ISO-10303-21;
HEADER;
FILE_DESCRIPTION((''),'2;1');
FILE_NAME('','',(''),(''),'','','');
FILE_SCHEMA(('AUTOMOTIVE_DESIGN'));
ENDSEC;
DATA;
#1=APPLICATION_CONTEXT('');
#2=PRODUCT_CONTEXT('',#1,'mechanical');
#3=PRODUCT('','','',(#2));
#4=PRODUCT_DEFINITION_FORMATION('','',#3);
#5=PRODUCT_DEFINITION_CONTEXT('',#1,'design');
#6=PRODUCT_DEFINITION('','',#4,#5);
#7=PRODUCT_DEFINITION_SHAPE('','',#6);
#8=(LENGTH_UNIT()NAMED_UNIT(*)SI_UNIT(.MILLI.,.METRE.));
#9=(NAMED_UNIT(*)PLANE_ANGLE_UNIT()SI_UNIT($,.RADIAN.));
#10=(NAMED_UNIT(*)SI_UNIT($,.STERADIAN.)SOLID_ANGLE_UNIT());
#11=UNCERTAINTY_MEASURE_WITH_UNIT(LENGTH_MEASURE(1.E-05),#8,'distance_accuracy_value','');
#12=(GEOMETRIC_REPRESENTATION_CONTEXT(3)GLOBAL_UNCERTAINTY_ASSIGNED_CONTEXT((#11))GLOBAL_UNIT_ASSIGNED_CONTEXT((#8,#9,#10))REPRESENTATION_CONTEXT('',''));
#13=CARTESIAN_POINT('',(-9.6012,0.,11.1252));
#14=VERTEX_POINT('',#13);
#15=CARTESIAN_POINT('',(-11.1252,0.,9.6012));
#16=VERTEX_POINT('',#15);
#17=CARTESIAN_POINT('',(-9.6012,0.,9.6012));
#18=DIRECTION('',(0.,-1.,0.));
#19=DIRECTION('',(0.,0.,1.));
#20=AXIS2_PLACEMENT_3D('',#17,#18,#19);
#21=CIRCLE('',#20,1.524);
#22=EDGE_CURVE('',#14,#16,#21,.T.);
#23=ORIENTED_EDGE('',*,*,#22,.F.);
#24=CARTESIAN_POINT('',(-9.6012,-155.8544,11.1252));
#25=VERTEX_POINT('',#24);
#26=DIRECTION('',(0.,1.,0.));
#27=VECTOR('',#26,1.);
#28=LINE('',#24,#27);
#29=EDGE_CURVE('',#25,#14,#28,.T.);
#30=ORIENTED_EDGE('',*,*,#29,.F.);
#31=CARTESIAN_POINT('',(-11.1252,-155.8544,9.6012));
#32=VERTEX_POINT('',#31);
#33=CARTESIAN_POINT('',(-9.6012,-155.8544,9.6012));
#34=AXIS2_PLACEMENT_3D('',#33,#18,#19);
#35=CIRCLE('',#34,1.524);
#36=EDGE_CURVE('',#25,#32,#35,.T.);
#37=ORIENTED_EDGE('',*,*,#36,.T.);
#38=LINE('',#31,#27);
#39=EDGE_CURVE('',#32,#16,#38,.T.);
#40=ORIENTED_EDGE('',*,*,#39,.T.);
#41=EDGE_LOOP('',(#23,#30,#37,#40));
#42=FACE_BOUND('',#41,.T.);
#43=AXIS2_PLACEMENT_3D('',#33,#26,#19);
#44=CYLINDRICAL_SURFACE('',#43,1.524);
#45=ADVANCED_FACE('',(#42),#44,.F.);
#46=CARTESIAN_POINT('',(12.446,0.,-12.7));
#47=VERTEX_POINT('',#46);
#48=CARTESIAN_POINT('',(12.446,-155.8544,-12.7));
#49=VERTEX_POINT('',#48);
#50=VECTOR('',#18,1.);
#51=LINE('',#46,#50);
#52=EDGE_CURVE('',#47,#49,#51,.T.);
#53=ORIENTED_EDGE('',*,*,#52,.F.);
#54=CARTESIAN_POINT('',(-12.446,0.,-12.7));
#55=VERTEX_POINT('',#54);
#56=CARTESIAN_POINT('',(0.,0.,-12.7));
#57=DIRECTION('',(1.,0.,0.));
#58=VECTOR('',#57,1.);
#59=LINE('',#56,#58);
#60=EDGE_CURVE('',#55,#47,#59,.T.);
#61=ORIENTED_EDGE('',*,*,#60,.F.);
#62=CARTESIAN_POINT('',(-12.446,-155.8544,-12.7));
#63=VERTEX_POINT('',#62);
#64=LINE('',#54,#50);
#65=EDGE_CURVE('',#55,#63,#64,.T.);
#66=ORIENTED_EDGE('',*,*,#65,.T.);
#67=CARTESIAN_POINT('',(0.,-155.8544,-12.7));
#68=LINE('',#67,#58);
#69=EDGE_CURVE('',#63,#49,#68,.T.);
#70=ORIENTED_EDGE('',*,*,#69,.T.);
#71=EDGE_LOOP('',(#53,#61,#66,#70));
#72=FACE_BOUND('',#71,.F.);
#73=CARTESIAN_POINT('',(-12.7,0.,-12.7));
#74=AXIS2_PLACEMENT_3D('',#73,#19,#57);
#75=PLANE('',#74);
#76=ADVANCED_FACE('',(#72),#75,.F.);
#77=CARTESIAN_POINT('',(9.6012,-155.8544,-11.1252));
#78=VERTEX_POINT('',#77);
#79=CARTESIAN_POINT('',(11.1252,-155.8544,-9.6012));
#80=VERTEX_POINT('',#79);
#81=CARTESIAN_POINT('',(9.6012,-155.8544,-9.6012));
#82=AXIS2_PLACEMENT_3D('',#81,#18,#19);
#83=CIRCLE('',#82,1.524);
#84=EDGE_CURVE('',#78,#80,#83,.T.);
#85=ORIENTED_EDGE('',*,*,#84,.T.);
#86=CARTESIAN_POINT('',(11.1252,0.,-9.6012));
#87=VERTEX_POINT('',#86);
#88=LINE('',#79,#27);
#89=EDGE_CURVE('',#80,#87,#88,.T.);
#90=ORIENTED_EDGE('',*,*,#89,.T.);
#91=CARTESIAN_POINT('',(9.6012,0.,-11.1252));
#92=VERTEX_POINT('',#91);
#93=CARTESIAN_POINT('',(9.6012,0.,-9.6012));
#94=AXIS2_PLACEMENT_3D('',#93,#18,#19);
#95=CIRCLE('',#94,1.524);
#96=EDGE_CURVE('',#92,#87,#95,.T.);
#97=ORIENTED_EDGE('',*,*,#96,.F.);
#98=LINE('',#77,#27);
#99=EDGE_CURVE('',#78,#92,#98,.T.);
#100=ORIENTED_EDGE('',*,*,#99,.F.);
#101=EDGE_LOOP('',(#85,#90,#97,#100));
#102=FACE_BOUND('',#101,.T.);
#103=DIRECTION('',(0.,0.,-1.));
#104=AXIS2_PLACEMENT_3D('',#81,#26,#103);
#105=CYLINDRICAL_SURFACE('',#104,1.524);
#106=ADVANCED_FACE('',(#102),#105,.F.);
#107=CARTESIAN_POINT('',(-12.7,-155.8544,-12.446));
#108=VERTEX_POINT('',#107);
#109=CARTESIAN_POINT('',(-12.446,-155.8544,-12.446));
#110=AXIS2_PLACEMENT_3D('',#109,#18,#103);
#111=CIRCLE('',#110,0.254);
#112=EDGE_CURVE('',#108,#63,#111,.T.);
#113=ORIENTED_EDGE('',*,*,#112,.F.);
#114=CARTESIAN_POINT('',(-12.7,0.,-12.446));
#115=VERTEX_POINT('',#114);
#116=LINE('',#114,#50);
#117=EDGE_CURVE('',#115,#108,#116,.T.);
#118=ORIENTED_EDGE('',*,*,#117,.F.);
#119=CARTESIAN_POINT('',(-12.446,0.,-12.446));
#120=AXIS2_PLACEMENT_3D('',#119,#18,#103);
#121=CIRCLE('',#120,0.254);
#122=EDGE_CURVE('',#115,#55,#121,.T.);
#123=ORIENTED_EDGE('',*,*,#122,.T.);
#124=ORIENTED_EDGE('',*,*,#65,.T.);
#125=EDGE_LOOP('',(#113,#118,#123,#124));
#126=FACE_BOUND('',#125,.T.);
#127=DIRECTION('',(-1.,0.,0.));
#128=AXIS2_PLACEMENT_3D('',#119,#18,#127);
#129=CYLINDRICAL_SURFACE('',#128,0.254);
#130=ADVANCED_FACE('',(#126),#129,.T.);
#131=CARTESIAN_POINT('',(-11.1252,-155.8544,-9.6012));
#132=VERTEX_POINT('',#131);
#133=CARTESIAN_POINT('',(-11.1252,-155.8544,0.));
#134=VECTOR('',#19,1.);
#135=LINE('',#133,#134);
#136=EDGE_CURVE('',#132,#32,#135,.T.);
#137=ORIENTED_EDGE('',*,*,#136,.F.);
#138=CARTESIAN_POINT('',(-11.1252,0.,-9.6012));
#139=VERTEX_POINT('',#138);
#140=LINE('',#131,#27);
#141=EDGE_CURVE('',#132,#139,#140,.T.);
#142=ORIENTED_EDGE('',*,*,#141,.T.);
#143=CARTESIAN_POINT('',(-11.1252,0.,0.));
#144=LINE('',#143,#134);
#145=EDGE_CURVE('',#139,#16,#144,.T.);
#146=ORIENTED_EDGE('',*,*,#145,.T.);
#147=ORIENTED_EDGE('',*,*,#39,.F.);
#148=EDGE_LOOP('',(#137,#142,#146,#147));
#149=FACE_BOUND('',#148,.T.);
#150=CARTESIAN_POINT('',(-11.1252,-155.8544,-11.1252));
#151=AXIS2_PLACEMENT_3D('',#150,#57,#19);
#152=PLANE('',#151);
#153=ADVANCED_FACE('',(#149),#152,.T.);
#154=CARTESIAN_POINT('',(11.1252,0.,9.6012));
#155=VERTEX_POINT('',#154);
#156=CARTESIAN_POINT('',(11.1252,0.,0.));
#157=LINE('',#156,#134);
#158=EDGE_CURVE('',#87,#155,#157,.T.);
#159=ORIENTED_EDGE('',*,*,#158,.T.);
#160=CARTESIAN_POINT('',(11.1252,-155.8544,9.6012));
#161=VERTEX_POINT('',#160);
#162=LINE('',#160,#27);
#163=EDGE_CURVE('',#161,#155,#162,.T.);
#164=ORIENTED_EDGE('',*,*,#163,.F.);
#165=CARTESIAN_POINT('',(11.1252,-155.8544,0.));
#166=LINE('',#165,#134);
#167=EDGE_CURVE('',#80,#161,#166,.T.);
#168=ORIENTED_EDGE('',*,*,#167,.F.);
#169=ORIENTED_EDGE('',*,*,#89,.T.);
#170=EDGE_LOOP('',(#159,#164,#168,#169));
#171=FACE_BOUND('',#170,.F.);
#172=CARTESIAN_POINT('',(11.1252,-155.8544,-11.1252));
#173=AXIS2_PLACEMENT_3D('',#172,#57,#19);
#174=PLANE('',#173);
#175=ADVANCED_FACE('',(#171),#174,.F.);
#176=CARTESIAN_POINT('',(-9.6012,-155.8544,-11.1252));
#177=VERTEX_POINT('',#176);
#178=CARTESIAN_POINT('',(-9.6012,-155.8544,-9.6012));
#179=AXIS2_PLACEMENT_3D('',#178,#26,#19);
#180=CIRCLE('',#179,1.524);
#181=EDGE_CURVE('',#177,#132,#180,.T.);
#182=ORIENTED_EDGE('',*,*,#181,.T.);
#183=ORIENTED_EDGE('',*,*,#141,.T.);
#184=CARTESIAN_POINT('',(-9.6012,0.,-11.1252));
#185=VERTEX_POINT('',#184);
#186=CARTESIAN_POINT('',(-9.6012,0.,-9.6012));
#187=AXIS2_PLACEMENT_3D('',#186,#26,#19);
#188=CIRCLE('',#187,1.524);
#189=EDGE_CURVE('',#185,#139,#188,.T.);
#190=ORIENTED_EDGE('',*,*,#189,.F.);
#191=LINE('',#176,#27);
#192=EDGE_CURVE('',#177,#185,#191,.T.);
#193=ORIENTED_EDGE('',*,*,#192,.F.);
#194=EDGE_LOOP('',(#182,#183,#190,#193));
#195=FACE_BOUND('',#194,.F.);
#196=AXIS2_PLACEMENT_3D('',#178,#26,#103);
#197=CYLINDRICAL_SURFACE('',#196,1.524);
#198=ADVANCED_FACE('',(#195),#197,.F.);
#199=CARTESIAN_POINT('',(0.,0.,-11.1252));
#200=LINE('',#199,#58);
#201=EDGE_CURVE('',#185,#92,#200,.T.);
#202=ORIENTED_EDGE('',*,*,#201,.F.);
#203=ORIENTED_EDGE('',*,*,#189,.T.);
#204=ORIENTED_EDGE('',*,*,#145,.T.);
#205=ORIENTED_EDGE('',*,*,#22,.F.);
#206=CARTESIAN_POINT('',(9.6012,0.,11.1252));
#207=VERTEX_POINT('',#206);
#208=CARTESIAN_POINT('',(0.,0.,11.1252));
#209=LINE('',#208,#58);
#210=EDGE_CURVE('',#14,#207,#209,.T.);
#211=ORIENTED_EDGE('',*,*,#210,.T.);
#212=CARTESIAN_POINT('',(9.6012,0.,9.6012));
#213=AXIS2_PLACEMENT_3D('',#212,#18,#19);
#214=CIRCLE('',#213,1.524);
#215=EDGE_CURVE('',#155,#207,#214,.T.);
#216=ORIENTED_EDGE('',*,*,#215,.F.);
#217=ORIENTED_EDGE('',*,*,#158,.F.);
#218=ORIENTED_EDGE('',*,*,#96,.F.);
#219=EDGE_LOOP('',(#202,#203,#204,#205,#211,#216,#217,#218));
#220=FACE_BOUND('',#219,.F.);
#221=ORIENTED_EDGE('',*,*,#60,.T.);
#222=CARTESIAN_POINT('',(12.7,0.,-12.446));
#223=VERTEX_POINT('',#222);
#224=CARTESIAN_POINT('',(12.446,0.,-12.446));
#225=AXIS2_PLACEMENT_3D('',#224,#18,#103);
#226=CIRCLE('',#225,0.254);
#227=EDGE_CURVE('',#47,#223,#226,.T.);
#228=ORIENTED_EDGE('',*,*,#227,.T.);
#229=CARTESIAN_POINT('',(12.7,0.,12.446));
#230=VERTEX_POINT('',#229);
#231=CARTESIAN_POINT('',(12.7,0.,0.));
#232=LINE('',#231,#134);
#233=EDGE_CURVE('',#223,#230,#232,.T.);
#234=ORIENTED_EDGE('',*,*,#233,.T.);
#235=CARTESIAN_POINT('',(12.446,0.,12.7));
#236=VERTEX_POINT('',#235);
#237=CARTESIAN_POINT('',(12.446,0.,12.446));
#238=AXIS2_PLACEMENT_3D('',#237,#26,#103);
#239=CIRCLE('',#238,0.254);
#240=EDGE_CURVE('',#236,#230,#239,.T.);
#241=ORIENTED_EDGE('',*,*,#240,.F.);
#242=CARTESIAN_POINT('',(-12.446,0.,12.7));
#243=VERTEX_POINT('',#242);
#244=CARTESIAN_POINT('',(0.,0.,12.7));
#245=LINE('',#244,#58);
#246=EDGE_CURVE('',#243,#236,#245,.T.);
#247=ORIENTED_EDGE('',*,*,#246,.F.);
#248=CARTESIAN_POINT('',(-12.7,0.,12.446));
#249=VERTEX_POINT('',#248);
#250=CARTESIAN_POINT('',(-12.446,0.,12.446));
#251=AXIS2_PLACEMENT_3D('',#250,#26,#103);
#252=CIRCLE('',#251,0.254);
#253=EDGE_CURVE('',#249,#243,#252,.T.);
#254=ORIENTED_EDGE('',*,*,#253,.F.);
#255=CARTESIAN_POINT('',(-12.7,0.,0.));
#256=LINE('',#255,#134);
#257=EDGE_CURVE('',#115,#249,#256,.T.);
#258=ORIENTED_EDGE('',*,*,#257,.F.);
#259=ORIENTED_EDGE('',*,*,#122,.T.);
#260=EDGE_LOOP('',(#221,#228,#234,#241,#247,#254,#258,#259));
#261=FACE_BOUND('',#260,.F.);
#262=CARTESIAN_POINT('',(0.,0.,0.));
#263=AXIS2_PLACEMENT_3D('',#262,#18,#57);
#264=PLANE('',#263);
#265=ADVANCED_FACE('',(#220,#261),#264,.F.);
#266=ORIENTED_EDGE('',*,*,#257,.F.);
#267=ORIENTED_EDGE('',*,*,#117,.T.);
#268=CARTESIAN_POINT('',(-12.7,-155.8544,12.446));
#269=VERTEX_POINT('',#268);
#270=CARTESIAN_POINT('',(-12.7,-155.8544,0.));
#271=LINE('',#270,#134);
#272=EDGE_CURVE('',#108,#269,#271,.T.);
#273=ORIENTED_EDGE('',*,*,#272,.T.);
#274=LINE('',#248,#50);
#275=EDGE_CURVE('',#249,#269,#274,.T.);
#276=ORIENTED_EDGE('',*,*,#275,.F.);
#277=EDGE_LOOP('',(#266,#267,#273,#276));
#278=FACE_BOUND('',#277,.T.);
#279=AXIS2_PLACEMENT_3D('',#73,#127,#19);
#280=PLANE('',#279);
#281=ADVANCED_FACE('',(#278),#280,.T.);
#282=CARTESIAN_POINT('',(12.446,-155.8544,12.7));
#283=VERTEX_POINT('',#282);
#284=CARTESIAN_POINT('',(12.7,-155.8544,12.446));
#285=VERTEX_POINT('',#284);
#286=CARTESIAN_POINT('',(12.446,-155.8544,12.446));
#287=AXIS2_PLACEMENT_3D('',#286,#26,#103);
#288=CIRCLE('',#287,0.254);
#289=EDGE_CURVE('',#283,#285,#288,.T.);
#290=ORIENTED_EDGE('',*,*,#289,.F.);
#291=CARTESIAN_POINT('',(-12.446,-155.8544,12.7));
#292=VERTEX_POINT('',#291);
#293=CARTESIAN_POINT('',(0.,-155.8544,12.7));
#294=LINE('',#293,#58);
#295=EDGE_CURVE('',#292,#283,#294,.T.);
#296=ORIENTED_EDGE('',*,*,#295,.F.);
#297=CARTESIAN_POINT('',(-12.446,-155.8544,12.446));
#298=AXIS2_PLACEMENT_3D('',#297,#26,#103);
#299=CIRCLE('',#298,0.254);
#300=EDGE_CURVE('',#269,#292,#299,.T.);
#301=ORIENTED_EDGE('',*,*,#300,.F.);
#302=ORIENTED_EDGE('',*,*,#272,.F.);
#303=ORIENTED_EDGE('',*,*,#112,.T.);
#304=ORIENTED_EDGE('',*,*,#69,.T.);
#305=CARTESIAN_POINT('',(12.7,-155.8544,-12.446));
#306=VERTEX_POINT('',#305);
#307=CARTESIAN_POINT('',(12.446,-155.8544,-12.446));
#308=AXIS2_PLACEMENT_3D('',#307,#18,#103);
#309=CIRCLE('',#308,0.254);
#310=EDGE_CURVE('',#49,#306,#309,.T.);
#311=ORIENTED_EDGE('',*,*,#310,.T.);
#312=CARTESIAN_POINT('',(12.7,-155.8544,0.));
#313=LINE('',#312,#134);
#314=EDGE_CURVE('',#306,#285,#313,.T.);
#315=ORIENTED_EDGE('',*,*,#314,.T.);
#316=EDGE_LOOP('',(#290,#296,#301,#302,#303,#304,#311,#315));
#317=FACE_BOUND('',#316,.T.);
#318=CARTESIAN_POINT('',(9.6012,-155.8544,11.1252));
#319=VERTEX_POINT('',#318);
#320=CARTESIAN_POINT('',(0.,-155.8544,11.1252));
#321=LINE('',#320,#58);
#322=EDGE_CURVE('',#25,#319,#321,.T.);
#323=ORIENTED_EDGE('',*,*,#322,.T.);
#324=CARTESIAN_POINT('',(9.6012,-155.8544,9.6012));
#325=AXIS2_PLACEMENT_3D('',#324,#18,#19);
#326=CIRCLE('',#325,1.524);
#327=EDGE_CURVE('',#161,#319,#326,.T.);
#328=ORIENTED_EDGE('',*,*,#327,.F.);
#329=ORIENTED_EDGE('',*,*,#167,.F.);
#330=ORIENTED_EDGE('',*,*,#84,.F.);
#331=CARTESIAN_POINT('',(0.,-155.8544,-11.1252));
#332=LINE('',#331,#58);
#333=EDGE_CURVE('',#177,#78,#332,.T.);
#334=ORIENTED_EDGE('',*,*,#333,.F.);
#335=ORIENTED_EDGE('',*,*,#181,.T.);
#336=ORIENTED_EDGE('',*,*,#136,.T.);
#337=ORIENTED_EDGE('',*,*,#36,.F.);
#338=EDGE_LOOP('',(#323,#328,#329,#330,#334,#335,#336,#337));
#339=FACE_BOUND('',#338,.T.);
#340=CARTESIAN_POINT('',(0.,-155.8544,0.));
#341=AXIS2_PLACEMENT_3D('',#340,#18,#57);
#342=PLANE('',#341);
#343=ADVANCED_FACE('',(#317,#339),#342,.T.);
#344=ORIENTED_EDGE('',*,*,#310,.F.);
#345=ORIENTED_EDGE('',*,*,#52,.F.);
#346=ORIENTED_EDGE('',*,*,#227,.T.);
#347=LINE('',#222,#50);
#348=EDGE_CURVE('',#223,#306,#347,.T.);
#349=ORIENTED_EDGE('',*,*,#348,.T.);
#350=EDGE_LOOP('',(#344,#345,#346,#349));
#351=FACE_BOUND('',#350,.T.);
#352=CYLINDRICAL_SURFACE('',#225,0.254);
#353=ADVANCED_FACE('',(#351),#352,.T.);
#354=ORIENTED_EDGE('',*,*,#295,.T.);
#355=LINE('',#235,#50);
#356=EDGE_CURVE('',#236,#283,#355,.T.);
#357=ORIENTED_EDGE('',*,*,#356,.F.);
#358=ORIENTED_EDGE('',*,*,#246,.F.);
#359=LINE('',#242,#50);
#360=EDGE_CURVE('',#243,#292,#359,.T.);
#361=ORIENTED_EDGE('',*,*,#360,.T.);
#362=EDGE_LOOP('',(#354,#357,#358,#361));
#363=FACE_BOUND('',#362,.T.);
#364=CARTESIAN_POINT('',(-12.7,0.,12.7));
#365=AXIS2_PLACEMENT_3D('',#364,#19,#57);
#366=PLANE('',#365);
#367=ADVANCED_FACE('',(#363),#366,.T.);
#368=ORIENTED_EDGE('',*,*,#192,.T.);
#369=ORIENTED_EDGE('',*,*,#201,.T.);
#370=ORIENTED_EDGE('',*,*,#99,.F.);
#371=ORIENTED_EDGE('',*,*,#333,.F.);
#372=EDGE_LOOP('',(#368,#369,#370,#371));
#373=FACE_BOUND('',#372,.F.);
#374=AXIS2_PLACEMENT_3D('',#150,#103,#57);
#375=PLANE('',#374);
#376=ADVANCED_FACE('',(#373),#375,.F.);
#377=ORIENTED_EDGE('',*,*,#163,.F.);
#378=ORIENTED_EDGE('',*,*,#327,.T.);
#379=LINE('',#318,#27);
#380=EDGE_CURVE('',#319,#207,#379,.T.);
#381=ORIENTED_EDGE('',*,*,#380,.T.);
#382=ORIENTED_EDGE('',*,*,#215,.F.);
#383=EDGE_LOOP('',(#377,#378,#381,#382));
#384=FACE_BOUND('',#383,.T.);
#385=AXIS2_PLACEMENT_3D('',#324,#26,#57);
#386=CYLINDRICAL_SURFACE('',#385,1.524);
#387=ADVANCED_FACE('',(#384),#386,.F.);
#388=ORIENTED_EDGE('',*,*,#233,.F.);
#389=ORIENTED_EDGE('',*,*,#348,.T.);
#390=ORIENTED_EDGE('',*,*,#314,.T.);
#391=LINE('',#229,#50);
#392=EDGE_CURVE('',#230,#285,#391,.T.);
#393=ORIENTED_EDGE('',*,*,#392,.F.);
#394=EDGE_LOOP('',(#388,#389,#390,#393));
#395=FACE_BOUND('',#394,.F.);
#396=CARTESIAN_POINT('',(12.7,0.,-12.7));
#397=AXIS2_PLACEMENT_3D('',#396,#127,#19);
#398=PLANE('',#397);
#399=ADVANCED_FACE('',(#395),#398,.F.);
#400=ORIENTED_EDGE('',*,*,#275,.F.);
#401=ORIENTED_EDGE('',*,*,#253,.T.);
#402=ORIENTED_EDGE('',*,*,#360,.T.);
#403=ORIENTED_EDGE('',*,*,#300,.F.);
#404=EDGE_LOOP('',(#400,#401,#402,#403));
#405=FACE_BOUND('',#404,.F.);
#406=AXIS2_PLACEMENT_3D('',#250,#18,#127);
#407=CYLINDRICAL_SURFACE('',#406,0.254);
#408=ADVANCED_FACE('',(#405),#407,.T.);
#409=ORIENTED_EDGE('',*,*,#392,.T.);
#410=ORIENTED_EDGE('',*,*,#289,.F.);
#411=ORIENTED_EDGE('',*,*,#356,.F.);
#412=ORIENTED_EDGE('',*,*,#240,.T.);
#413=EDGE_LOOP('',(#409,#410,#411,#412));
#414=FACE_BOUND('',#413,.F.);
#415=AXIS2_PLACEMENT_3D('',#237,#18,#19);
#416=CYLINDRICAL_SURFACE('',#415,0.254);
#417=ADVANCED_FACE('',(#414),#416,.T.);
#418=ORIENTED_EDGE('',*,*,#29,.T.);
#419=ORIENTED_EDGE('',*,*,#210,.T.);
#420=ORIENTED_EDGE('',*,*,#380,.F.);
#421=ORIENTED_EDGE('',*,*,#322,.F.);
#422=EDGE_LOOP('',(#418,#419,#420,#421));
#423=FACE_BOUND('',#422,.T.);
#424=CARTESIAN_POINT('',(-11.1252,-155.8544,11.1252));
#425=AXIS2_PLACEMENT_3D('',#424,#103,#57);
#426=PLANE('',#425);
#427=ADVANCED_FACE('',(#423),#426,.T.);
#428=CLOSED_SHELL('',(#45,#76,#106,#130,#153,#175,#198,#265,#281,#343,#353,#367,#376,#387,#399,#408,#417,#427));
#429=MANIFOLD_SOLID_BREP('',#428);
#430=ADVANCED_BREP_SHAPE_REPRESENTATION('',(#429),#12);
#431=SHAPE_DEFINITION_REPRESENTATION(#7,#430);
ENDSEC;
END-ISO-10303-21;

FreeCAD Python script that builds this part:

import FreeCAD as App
import Part
import Sketcher

V = App.Vector
Q = App.Units.Quantity


def edges_at(feature, points):
    """Names of the edges that pass closest to the given points."""
    edges = feature.Shape.Edges
    near = lambda p: min(range(len(edges)), key=lambda i: edges[i].distToShape(Part.Vertex(*p))[0])
    return sorted({f"Edge{near(p) + 1}" for p in points})


def add_polygon(sketch, points):
    """Adds a closed chain of lines whose ends are joined by coincident constraints."""
    first, n = sketch.GeometryCount, len(points)
    for a, b in zip(points, points[1:] + points[:1]):
        sketch.addGeometry(Part.LineSegment(App.Vector(*a, 0), App.Vector(*b, 0)), False)
    for i in range(n):
        sketch.addConstraint(Sketcher.Constraint("Coincident", first + i, 2, first + (i + 1) % n, 1))

doc = App.newDocument("Part")
body = doc.addObject("PartDesign::Body", "Body")

# Sketch on XZ plane
sketch1 = body.newObject("Sketcher::SketchObject", "Sketch")
sketch1.AttachmentSupport = (doc.getObject("XZ_Plane"), [""])
sketch1.MapMode = "FlatFace"
add_polygon(sketch1, [(-13, 13), (-13, -13), (13, -13), (13, 13)])  # lines 0-3
sketch1.addConstraint([
    Sketcher.Constraint("Vertical", 0),
    Sketcher.Constraint("Horizontal", 1),
    Sketcher.Constraint("Vertical", 2),
    Sketcher.Constraint("Horizontal", 3),
    Sketcher.Constraint("Symmetric", 0, 2, 2, 2, -1, 1),
    Sketcher.Constraint("Equal", 3, 0),
    Sketcher.Constraint("DistanceX", 1, 1, 1, 2, Q("1 in")),
])
pad1 = body.newObject("PartDesign::Pad", "Pad")
pad1.Profile = sketch1
pad1.Length = Q("6.136 in")

# Sketch on XZ plane
sketch2 = body.newObject("Sketcher::SketchObject", "Sketch001")
sketch2.AttachmentSupport = (doc.getObject("XZ_Plane"), [""])
sketch2.MapMode = "FlatFace"
sketch2.AttachmentOffset = App.Placement(V(0, 0, 6.136 * 25.4), App.Rotation())
add_polygon(sketch2, [(-11, 11), (-11, -11), (11, -11), (11, 11)])  # lines 0-3
sketch2.addConstraint([
    Sketcher.Constraint("Vertical", 0),
    Sketcher.Constraint("Horizontal", 1),
    Sketcher.Constraint("Vertical", 2),
    Sketcher.Constraint("Horizontal", 3),
    Sketcher.Constraint("Symmetric", 0, 2, 2, 2, -1, 1),
    Sketcher.Constraint("Equal", 3, 0),
    Sketcher.Constraint("DistanceX", 1, 1, 1, 2, Q("0.876 in")),
])
pocket1 = body.newObject("PartDesign::Pocket", "Pocket")
pocket1.Profile = sketch2
pocket1.Type = "ThroughAll"
doc.recompute()

fillet = body.newObject("PartDesign::Fillet", "Fillet")
fillet.Base = (pocket1, edges_at(pocket1, [
    (-11.125, -77.927, 11.125),
    (11.125, -77.927, -11.125),
    (11.125, -77.927, 11.125),
    (-11.125, -77.927, -11.125),
]))
fillet.Radius = Q("0.06 in")
doc.recompute()

fillet2 = body.newObject("PartDesign::Fillet", "Fillet001")
fillet2.Base = (fillet, edges_at(fillet, [
    (12.7, -77.927, 12.7),
    (12.7, -77.927, -12.7),
    (-12.7, -77.927, -12.7),
    (-12.7, -77.927, 12.7),
]))
fillet2.Radius = Q("0.01 in")

doc.recompute()
